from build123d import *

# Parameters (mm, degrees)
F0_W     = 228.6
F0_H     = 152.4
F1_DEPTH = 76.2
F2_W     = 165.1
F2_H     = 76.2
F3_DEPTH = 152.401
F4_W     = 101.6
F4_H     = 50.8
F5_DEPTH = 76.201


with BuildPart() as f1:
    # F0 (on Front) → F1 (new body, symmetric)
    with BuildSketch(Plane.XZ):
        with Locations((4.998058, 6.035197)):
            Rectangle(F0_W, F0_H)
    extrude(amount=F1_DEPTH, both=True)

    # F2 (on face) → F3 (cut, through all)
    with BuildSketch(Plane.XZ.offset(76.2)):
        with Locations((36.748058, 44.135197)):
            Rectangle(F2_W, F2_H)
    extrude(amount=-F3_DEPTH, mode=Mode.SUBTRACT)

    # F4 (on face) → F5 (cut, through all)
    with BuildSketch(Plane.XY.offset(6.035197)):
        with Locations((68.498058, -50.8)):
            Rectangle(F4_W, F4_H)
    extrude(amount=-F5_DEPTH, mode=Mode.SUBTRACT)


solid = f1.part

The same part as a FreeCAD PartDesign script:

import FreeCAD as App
import Part
import Sketcher

V = App.Vector
Q = App.Units.Quantity


def add_polygon(sketch, points):
    """Adds a closed chain of lines whose ends are joined by coincident constraints."""
    first, n = sketch.GeometryCount, len(points)
    for a, b in zip(points, points[1:] + points[:1]):
        sketch.addGeometry(Part.LineSegment(App.Vector(*a, 0), App.Vector(*b, 0)), False)
    for i in range(n):
        sketch.addConstraint(Sketcher.Constraint("Coincident", first + i, 2, first + (i + 1) % n, 1))

doc = App.newDocument("Part")
params = doc.addObject("Spreadsheet::Sheet", "Params")
for row, (alias, value) in enumerate([
    ("sketch1_width", "9 in"),
    ("sketch1_height", "6 in"),
    ("pad1_length", "6 in"),
    ("sketch2_height", "3 in"),
    ("sketch2_width", "6.5 in"),
    ("sketch3_width", "4 in"),
    ("sketch3_height", "2 in"),
], start=1):
    params.set(f"A{row}", alias)
    params.set(f"B{row}", "=" + value)
    params.setAlias(f"B{row}", alias)

body = doc.addObject("PartDesign::Body", "Body")

sketch1 = doc.addObject("Sketcher::SketchObject", "Sketch")
body.addObject(sketch1)
sketch1.AttachmentSupport = (doc.XZ_Plane, [""])
sketch1.MapMode = "FlatFace"
add_polygon(sketch1, [(-109.301942, 82.235197), (-109.301942, -70.164803), (119.298058, -70.164803), (119.298058, 82.235197)])
sketch1.addConstraint([
    Sketcher.Constraint("Vertical", 0),
    Sketcher.Constraint("Horizontal", 1),
    Sketcher.Constraint("Vertical", 2),
    Sketcher.Constraint("Horizontal", 3),
    Sketcher.Constraint("DistanceX", 1, 1, 1, 2, Q("9 in")),
    Sketcher.Constraint("DistanceY", 0, 2, 0, 1, Q("6 in")),
    Sketcher.Constraint("DistanceX", 0, 2, -1, 1, 109.301942),
    Sketcher.Constraint("DistanceY", 0, 2, -1, 1, 70.164803),
])
sketch1.setExpression("Constraints[8]", "Params.sketch1_width")
sketch1.setExpression("Constraints[9]", "Params.sketch1_height")
pad1 = doc.addObject("PartDesign::Pad", "Pad")
body.addObject(pad1)
pad1.Profile = sketch1
pad1.setExpression("Length", "Params.pad1_length")
pad1.Midplane = True

sketch2 = doc.addObject("Sketcher::SketchObject", "Sketch001")
body.addObject(sketch2)
sketch2.AttachmentSupport = (doc.XZ_Plane, [""])
sketch2.MapMode = "FlatFace"
sketch2.AttachmentOffset = App.Placement(V(0, 0, 3 * 25.4), App.Rotation())
add_polygon(sketch2, [(-45.801942, 82.235197), (-45.801942, 6.035197), (119.298058, 6.035197), (119.298058, 82.235197)])
sketch2.addConstraint([
    Sketcher.Constraint("Vertical", 0),
    Sketcher.Constraint("Horizontal", 1),
    Sketcher.Constraint("Vertical", 2),
    Sketcher.Constraint("Horizontal", 3),
    Sketcher.Constraint("DistanceY", 0, 2, 0, 1, Q("3 in")),
    Sketcher.Constraint("DistanceX", 1, 1, 1, 2, Q("6.5 in")),
    Sketcher.Constraint("DistanceX", 0, 2, -1, 1, 45.801942),
    Sketcher.Constraint("DistanceY", -1, 1, 0, 2, 6.035197),
])
sketch2.setExpression("Constraints[8]", "Params.sketch2_height")
sketch2.setExpression("Constraints[9]", "Params.sketch2_width")
pocket1 = doc.addObject("PartDesign::Pocket", "Pocket")
body.addObject(pocket1)
pocket1.Profile = sketch2
pocket1.Type = "ThroughAll"

sketch3 = doc.addObject("Sketcher::SketchObject", "Sketch002")
body.addObject(sketch3)
sketch3.AttachmentSupport = (doc.XY_Plane, [""])
sketch3.MapMode = "FlatFace"
sketch3.AttachmentOffset = App.Placement(V(0, 0, 6.035197), App.Rotation())
add_polygon(sketch3, [(17.698058, -25.4), (17.698058, -76.2), (119.298058, -76.2), (119.298058, -25.4)])
sketch3.addConstraint([
    Sketcher.Constraint("Vertical", 0),
    Sketcher.Constraint("Horizontal", 1),
    Sketcher.Constraint("Vertical", 2),
    Sketcher.Constraint("Horizontal", 3),
    Sketcher.Constraint("DistanceX", 1, 1, 1, 2, Q("4 in")),
    Sketcher.Constraint("DistanceY", 0, 2, 0, 1, Q("2 in")),
    Sketcher.Constraint("DistanceY", 0, 2, -1, 1, Q("3 in")),
    Sketcher.Constraint("DistanceX", -1, 1, 0, 2, 17.698058),
])
sketch3.setExpression("Constraints[8]", "Params.sketch3_width")
sketch3.setExpression("Constraints[9]", "Params.sketch3_height")
pocket2 = doc.addObject("PartDesign::Pocket", "Pocket001")
body.addObject(pocket2)
pocket2.Profile = sketch3
pocket2.Type = "ThroughAll"

doc.recompute()
